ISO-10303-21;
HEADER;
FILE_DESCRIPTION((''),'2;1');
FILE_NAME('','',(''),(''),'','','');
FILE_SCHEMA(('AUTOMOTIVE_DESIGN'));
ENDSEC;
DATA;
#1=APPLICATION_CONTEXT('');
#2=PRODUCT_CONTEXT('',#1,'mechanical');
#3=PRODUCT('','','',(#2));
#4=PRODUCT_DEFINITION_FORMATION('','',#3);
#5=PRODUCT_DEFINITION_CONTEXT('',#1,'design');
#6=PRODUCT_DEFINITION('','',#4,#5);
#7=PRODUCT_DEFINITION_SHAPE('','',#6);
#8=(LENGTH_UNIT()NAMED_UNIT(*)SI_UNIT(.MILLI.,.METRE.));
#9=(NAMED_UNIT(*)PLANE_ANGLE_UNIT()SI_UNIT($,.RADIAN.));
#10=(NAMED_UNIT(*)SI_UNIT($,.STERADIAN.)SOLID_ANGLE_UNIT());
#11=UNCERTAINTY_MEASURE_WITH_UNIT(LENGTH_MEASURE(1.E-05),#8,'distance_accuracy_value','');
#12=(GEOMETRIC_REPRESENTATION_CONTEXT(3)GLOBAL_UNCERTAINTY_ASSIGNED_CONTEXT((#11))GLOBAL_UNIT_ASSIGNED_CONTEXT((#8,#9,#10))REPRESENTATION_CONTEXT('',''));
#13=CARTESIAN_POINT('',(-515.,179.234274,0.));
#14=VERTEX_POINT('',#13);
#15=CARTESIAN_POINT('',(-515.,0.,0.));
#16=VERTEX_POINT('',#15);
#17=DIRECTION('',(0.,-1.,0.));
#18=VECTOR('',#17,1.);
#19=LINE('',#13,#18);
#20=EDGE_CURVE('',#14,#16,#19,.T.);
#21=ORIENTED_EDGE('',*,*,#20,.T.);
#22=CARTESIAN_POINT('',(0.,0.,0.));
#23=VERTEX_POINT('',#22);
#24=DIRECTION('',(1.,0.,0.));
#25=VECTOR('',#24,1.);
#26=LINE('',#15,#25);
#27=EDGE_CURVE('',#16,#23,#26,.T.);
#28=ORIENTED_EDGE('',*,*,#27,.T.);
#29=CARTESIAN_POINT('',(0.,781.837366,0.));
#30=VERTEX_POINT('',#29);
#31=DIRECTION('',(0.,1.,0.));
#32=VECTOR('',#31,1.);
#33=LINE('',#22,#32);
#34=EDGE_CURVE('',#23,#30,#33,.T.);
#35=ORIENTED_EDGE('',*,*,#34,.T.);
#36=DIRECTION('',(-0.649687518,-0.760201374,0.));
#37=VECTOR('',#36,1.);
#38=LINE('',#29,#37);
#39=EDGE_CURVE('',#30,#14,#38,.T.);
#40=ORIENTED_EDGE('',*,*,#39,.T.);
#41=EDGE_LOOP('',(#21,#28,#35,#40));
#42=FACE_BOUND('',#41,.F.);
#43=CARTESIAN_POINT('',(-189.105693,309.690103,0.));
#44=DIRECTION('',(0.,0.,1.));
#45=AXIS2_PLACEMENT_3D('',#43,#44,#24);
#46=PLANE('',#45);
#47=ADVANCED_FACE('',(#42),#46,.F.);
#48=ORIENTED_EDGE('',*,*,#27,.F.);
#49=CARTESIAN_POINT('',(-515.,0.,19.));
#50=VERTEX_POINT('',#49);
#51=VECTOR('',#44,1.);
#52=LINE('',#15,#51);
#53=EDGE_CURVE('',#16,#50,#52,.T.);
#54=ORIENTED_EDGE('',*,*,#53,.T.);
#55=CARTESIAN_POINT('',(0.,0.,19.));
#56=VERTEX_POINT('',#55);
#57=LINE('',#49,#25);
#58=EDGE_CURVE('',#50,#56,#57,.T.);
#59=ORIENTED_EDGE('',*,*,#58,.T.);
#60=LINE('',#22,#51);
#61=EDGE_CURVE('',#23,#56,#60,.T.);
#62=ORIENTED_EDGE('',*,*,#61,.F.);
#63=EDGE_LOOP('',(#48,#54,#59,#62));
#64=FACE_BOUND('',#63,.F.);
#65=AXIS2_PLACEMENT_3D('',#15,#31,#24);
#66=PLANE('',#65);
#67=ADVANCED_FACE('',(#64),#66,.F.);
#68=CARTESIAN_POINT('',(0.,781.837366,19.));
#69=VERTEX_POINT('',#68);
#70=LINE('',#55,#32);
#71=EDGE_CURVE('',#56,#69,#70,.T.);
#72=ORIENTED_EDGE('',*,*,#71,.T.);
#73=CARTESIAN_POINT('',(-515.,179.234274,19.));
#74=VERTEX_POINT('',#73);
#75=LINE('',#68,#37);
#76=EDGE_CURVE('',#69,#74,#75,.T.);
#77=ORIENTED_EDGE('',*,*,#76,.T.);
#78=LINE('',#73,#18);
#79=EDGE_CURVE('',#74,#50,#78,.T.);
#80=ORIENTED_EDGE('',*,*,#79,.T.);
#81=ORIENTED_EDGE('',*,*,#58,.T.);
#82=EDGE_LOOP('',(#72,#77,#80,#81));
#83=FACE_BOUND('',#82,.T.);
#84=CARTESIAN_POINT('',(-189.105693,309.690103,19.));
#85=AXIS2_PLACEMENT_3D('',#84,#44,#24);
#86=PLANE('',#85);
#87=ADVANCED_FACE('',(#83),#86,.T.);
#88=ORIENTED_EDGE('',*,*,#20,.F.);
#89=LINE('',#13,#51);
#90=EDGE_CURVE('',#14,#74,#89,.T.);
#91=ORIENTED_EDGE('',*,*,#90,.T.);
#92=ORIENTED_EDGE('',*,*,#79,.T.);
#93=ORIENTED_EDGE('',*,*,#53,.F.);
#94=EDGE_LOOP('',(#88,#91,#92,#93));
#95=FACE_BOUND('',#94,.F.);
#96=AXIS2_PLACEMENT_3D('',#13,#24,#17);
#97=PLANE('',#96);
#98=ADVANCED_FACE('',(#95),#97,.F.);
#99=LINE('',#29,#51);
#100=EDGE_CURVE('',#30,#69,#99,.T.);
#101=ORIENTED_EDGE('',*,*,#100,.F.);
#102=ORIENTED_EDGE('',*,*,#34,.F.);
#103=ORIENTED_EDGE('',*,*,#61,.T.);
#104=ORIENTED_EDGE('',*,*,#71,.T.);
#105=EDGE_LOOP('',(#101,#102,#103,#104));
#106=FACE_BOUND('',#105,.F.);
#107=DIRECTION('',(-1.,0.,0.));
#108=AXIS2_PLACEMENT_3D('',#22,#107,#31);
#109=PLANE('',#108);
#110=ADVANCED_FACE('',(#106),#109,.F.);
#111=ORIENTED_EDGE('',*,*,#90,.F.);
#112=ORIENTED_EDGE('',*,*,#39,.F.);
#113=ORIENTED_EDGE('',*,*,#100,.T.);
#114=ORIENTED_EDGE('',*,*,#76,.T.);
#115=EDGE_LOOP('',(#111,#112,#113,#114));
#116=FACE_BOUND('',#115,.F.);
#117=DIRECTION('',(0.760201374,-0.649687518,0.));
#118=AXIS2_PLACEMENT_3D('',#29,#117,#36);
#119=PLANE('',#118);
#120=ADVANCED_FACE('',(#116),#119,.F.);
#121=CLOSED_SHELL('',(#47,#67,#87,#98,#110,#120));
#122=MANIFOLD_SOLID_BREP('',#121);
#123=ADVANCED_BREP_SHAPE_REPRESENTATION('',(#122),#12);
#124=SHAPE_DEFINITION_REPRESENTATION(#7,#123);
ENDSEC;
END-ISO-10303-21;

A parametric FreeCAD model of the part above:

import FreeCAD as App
import Part
import Sketcher
from FreeCAD import Vector
Q = App.Units.Quantity


def add_polygon(sketch, points):
    """Adds a closed chain of lines whose ends are joined by coincident constraints."""
    first, n = sketch.GeometryCount, len(points)
    for a, b in zip(points, points[1:] + points[:1]):
        sketch.addGeometry(Part.LineSegment(App.Vector(*a, 0), App.Vector(*b, 0)), False)
    for i in range(n):
        sketch.addConstraint(Sketcher.Constraint("Coincident", first + i, 2, first + (i + 1) % n, 1))

doc = App.newDocument("Part")
body = doc.addObject("PartDesign::Body", "Body")

# Sketch on XY plane
sketch1 = body.newObject("Sketcher::SketchObject", "Sketch")
sketch1.AttachmentSupport = (doc.getObject("XY_Plane"), [""])
sketch1.MapMode = "FlatFace"
add_polygon(sketch1, [(0, 0), (0, 782), (-515, 179), (-515, 0)])  # lines 0-3
sketch1.addConstraint([
    Sketcher.Constraint("Vertical", 0),
    Sketcher.Constraint("Vertical", 2),
    Sketcher.Constraint("Horizontal", 3),
    Sketcher.Constraint("Coincident", 3, 2, -1, 1),
    Sketcher.Constraint("DistanceX", 3, 1, 3, 2, Q("515 mm")),
    Sketcher.Constraint("Distance", 1, Q("792.68877 mm")),
    Sketcher.Constraint("DistanceY", 0, 1, 0, 2, Q("781.837366 mm")),
])
pad1 = body.newObject("PartDesign::Pad", "Pad")
pad1.Profile = sketch1
pad1.Length = 19

doc.recompute()
